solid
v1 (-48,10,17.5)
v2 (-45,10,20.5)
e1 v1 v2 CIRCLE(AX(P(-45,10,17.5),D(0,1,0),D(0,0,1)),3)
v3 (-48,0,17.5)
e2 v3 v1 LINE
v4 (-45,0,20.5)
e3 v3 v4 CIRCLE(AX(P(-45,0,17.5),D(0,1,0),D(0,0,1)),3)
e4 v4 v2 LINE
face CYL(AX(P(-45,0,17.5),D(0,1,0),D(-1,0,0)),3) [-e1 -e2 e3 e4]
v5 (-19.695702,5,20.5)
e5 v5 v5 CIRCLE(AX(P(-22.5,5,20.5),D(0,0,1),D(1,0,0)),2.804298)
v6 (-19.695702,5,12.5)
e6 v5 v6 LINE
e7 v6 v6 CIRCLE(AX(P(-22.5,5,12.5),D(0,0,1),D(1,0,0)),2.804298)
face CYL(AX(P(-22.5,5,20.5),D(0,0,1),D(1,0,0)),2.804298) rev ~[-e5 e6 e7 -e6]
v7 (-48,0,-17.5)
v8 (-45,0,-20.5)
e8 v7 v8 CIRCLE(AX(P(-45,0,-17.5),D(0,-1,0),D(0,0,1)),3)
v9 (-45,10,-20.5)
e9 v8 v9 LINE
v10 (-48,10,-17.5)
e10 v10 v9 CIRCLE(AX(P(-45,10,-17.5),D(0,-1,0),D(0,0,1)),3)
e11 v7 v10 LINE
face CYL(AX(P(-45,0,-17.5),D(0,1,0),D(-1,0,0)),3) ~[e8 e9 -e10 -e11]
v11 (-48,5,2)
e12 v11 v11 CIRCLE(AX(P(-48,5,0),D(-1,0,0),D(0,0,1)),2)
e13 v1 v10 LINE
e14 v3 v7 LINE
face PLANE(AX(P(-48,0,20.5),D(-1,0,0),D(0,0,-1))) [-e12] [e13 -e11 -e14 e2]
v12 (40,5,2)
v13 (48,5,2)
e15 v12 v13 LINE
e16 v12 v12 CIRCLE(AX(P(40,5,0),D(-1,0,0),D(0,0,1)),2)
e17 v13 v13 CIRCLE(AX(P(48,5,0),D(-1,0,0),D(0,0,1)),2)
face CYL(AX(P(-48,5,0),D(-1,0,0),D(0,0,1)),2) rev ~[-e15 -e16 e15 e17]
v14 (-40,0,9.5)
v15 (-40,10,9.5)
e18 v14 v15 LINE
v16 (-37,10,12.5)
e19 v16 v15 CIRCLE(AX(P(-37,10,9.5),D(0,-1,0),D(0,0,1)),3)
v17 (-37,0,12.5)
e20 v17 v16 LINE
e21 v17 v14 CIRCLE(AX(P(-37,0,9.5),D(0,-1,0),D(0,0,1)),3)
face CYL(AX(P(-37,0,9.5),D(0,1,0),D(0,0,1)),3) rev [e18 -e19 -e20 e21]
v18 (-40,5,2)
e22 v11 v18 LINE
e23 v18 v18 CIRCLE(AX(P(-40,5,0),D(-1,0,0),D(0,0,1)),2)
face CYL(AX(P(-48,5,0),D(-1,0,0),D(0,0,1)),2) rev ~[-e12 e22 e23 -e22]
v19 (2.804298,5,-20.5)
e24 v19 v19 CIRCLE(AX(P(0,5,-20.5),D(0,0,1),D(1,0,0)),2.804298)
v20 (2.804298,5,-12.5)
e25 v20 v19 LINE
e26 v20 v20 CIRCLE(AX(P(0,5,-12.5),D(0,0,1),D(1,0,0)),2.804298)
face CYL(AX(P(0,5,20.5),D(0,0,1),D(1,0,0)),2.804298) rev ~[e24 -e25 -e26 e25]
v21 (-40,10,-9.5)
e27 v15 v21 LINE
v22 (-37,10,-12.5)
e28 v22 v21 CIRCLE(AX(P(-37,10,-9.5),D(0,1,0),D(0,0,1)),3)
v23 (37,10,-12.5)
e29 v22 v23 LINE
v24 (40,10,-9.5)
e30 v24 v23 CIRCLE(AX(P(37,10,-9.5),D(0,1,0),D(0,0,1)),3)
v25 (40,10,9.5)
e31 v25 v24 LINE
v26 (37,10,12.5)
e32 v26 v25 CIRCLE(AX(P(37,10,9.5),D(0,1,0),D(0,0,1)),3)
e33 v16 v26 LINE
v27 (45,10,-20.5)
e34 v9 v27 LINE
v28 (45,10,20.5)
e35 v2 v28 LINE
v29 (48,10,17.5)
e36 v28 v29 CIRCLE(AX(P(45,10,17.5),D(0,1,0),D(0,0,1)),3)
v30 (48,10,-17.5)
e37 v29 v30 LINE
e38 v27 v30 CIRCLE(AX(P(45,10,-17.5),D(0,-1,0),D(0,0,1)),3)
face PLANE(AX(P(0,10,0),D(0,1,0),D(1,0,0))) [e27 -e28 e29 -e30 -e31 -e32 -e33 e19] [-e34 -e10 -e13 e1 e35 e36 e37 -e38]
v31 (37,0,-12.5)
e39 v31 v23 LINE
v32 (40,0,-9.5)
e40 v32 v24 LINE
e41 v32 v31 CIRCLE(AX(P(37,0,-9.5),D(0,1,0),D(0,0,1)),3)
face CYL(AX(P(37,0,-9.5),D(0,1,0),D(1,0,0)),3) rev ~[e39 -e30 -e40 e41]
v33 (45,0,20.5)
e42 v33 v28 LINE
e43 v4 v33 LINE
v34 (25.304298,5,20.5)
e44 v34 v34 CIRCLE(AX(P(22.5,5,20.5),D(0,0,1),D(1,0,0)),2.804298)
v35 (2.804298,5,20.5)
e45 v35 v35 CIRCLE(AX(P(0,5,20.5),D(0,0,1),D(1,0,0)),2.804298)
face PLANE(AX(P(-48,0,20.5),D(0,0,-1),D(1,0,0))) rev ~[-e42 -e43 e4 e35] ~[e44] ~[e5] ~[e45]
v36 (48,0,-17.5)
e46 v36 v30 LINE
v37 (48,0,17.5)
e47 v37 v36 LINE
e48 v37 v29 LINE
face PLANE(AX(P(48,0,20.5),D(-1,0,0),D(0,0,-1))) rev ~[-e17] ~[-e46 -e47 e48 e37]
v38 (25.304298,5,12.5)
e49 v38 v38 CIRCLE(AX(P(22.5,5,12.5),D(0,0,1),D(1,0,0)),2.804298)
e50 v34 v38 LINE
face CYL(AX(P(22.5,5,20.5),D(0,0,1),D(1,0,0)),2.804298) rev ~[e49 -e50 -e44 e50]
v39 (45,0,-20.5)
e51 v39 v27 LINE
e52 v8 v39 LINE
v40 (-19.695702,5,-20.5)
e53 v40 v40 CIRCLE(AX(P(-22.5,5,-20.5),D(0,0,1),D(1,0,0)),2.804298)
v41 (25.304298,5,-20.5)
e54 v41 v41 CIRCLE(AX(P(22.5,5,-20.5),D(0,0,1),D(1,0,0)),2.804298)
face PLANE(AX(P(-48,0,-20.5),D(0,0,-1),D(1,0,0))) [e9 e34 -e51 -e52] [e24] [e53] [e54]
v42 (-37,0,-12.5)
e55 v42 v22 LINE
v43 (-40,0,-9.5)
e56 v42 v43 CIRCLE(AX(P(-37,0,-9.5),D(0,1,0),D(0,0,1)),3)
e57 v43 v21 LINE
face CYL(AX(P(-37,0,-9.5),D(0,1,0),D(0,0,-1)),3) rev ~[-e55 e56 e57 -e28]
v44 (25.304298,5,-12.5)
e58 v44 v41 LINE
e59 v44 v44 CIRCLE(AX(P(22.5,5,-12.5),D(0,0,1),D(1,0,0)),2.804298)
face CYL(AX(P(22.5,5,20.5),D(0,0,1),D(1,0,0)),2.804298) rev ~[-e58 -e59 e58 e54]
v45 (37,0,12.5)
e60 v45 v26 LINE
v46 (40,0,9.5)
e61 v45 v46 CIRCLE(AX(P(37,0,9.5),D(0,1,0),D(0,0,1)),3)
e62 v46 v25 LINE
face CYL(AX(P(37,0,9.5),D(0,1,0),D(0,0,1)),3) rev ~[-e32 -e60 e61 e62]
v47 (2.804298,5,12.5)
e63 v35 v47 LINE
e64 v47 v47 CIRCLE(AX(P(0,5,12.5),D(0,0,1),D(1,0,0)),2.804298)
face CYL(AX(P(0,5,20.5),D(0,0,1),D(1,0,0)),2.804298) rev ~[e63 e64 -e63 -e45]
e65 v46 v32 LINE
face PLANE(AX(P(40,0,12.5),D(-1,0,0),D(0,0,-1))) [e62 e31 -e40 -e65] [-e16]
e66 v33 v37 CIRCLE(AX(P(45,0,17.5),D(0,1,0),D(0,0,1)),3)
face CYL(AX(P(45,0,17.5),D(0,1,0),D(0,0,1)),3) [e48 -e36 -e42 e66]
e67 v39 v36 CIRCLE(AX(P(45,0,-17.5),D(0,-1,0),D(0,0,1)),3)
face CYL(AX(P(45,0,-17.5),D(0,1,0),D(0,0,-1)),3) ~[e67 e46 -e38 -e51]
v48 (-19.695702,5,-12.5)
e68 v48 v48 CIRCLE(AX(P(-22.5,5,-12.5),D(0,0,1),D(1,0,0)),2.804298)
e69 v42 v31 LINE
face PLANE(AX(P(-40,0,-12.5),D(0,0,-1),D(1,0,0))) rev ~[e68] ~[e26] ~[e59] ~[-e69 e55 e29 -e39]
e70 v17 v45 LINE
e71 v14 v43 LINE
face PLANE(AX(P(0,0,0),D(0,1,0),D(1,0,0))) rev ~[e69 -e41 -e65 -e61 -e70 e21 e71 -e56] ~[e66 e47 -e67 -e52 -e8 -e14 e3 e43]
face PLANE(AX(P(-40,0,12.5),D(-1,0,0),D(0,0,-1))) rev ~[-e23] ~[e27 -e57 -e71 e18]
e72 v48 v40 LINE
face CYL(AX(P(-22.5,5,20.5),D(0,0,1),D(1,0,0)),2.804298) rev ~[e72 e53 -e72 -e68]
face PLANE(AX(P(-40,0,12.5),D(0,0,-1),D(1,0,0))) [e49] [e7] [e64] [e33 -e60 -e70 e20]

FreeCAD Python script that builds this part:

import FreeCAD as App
import Part
import Sketcher


def edges_at(feature, points):
    """Names of the edges that pass closest to the given points."""
    edges = feature.Shape.Edges
    near = lambda p: min(range(len(edges)), key=lambda i: edges[i].distToShape(Part.Vertex(*p))[0])
    return sorted({f"Edge{near(p) + 1}" for p in points})

doc = App.newDocument("Part")
body = doc.addObject("PartDesign::Body", "Body")

# Sketch on XZ plane
sketch1 = body.newObject("Sketcher::SketchObject", "Sketch")
sketch1.AttachmentSupport = (doc.getObject("XZ_Plane"), [""])
sketch1.MapMode = "FlatFace"
sketch1.addGeometry(Part.LineSegment(App.Vector(-48, -20.5, 0), App.Vector(-48, 20.5, 0)), False)
sketch1.addGeometry(Part.LineSegment(App.Vector(-48, 20.5, 0), App.Vector(48, 20.5, 0)), False)
sketch1.addGeometry(Part.LineSegment(App.Vector(48, 20.5, 0), App.Vector(48, -20.5, 0)), False)
sketch1.addGeometry(Part.LineSegment(App.Vector(48, -20.5, 0), App.Vector(-48, -20.5, 0)), False)
sketch1.addGeometry(Part.LineSegment(App.Vector(40, 12.5, 0), App.Vector(-40, 12.5, 0)), False)
sketch1.addGeometry(Part.LineSegment(App.Vector(-40, 12.5, 0), App.Vector(-40, -12.5, 0)), False)
sketch1.addGeometry(Part.LineSegment(App.Vector(-40, -12.5, 0), App.Vector(40, -12.5, 0)), False)
sketch1.addGeometry(Part.LineSegment(App.Vector(40, -12.5, 0), App.Vector(40, 12.5, 0)), False)
sketch1.addConstraint(Sketcher.Constraint("Coincident", 0, 2, 1, 1))
sketch1.addConstraint(Sketcher.Constraint("Coincident", 1, 2, 2, 1))
sketch1.addConstraint(Sketcher.Constraint("Coincident", 2, 2, 3, 1))
sketch1.addConstraint(Sketcher.Constraint("Coincident", 3, 2, 0, 1))
sketch1.addConstraint(Sketcher.Constraint("Coincident", 4, 2, 5, 1))
sketch1.addConstraint(Sketcher.Constraint("Coincident", 5, 2, 6, 1))
sketch1.addConstraint(Sketcher.Constraint("Coincident", 6, 2, 7, 1))
sketch1.addConstraint(Sketcher.Constraint("Coincident", 7, 2, 4, 1))
sketch1.addConstraint(Sketcher.Constraint("Vertical", 0))
sketch1.addConstraint(Sketcher.Constraint("Horizontal", 1))
sketch1.addConstraint(Sketcher.Constraint("Vertical", 2))
sketch1.addConstraint(Sketcher.Constraint("Horizontal", 3))
sketch1.addConstraint(Sketcher.Constraint("Horizontal", 4))
sketch1.addConstraint(Sketcher.Constraint("Vertical", 5))
sketch1.addConstraint(Sketcher.Constraint("Horizontal", 6))
sketch1.addConstraint(Sketcher.Constraint("Vertical", 7))
sketch1.addConstraint(Sketcher.Constraint("Symmetric", 0, 2, 2, 2, -1, 1))
sketch1.addConstraint(Sketcher.Constraint("Symmetric", 4, 2, 6, 2, -1, 1))
sketch1.addConstraint(Sketcher.Constraint("DistanceX", 1, 1, 1, 2, 96.0))
sketch1.addConstraint(Sketcher.Constraint("DistanceX", 4, 2, 4, 1, 80.0))
sketch1.addConstraint(Sketcher.Constraint("DistanceY", 0, 1, 0, 2, 41.0))
sketch1.addConstraint(Sketcher.Constraint("DistanceY", 5, 2, 5, 1, 25.0))
pad1 = body.newObject("PartDesign::Pad", "Pad")
pad1.Profile = sketch1
pad1.Length = 10
pad1.Reversed = True
doc.recompute()

fillet = body.newObject("PartDesign::Fillet", "Fillet")
fillet.Base = (pad1, edges_at(pad1, [
    (48, 5, 20.5),
    (-48, 5, 20.5),
    (-48, 5, -20.5),
    (48, 5, -20.5),
]))
fillet.Radius = 3

# Sketch on YZ plane
sketch2 = body.newObject("Sketcher::SketchObject", "Sketch001")
sketch2.AttachmentSupport = (doc.getObject("YZ_Plane"), [""])
sketch2.MapMode = "FlatFace"
sketch2.AttachmentOffset = App.Placement(App.Vector(0, 0, -48), App.Rotation())
sketch2.addGeometry(Part.Circle(App.Vector(5, 0, 0), App.Vector(0, 0, 1), 2), False)
sketch2.addConstraint(Sketcher.Constraint("PointOnObject", 0, 3, -1))
sketch2.addConstraint(Sketcher.Constraint("Diameter", 0, 4.0))
sketch2.addConstraint(Sketcher.Constraint("DistanceX", -1, 1, 0, 3, 5.0))
pocket1 = body.newObject("PartDesign::Pocket", "Pocket")
pocket1.Profile = sketch2
pocket1.Type = "ThroughAll"
pocket1.Reversed = True

# Sketch on XY plane
sketch3 = body.newObject("Sketcher::SketchObject", "Sketch002")
sketch3.AttachmentSupport = (doc.getObject("XY_Plane"), [""])
sketch3.MapMode = "FlatFace"
sketch3.AttachmentOffset = App.Placement(App.Vector(0, 0, 20.5), App.Rotation())
sketch3.addGeometry(Part.Circle(App.Vector(-22.5, 5, 0), App.Vector(0, 0, 1), 2.804298), False)
sketch3.addGeometry(Part.Circle(App.Vector(0, 5, 0), App.Vector(0, 0, 1), 2.804298), False)
sketch3.addGeometry(Part.Circle(App.Vector(22.5, 5, 0), App.Vector(0, 0, 1), 2.804298), False)
sketch3.addConstraint(Sketcher.Constraint("Equal", 0, 1))
sketch3.addConstraint(Sketcher.Constraint("Equal", 1, 2))
sketch3.addConstraint(Sketcher.Constraint("Symmetric", 0, 3, 2, 3, -2))
sketch3.addConstraint(Sketcher.Constraint("PointOnObject", 1, 3, -2))
sketch3.addConstraint(Sketcher.Constraint("Horizontal", 0, 3, 1, 3))
sketch3.addConstraint(Sketcher.Constraint("DistanceY", -1, 1, 0, 3, 5.0))
sketch3.addConstraint(Sketcher.Constraint("DistanceX", 0, 3, 2, 3, 45.0))
sketch3.addConstraint(Sketcher.Constraint("Diameter", 0, 5.608597))
pocket2 = body.newObject("PartDesign::Pocket", "Pocket001")
pocket2.Profile = sketch3
pocket2.Type = "ThroughAll"
doc.recompute()

fillet2 = body.newObject("PartDesign::Fillet", "Fillet001")
fillet2.Base = (pocket2, edges_at(pocket2, [
    (40, 5, 12.5),
    (40, 5, -12.5),
    (-40, 5, -12.5),
    (-40, 5, 12.5),
]))
fillet2.Radius = 3

doc.recompute()
